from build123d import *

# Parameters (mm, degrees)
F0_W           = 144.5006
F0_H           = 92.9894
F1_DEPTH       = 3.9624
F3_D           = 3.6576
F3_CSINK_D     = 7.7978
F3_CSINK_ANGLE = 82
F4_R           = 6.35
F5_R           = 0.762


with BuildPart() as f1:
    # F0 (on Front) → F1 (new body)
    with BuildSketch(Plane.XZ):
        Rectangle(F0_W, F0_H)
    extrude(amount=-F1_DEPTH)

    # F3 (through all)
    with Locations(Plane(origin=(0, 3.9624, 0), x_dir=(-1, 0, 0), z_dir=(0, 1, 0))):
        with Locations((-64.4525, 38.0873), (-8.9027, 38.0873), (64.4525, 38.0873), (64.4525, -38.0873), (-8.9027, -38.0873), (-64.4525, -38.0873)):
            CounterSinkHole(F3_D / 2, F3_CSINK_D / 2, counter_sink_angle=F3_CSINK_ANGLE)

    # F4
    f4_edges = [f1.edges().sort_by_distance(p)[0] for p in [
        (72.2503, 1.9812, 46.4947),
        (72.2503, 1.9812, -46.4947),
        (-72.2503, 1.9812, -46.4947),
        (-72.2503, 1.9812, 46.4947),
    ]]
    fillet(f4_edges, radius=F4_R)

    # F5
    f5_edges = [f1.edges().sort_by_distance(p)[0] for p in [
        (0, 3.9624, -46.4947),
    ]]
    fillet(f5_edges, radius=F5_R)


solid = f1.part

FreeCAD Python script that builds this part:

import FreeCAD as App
import Part
import Sketcher
Q = App.Units.Quantity


def edges_at(feature, points):
    """Names of the edges that pass closest to the given points."""
    edges = feature.Shape.Edges
    near = lambda p: min(range(len(edges)), key=lambda i: edges[i].distToShape(Part.Vertex(*p))[0])
    return sorted({f"Edge{near(p) + 1}" for p in points})

doc = App.newDocument("Part")
body = doc.addObject("PartDesign::Body", "Body")

# Sketch on XZ plane
sketch1 = doc.addObject("Sketcher::SketchObject", "Sketch")
body.addObject(sketch1)
sketch1.AttachmentSupport = (doc.XZ_Plane, [""])
sketch1.MapMode = "FlatFace"
sketch1.addGeometry([
    Part.LineSegment(App.Vector(-72, 46, 0), App.Vector(-72, -46, 0)),
    Part.LineSegment(App.Vector(-72, -46, 0), App.Vector(72, -46, 0)),
    Part.LineSegment(App.Vector(72, -46, 0), App.Vector(72, 46, 0)),
    Part.LineSegment(App.Vector(72, 46, 0), App.Vector(-72, 46, 0)),
], False)
sketch1.addConstraint([
    Sketcher.Constraint("Coincident", 0, 2, 1, 1),
    Sketcher.Constraint("Coincident", 1, 2, 2, 1),
    Sketcher.Constraint("Coincident", 2, 2, 3, 1),
    Sketcher.Constraint("Coincident", 3, 2, 0, 1),
    Sketcher.Constraint("Vertical", 0),
    Sketcher.Constraint("Horizontal", 1),
    Sketcher.Constraint("Vertical", 2),
    Sketcher.Constraint("Horizontal", 3),
    Sketcher.Constraint("Symmetric", 0, 2, 2, 2, -1, 1),
    Sketcher.Constraint("DistanceX", 1, 1, 1, 2, Q("5.689 in")),
    Sketcher.Constraint("DistanceY", 0, 2, 0, 1, Q("3.661 in")),
])
pad1 = doc.addObject("PartDesign::Pad", "Pad")
body.addObject(pad1)
pad1.Profile = sketch1
pad1.Length = Q("0.156 in")
pad1.Reversed = True

# Sketch on XZ plane
sketch2 = doc.addObject("Sketcher::SketchObject", "Sketch001")
body.addObject(sketch2)
sketch2.AttachmentSupport = (doc.XZ_Plane, [""])
sketch2.MapMode = "FlatFace"
sketch2.AttachmentOffset = App.Placement(App.Vector(0, 0, -0.156 * 25.4), App.Rotation())
sketch2.addGeometry([
    Part.Circle(App.Vector(64.5, 38.1, 0), App.Vector(0, 0, 1), 1.8),  # 0
    Part.Circle(App.Vector(8.9, 38.1, 0), App.Vector(0, 0, 1), 1.8),  # 1
    Part.Circle(App.Vector(-64.5, 38.1, 0), App.Vector(0, 0, 1), 1.8),  # 2
    Part.Circle(App.Vector(-64.5, -38.1, 0), App.Vector(0, 0, 1), 1.8),  # 3
    Part.Circle(App.Vector(8.9, -38.1, 0), App.Vector(0, 0, 1), 1.8),  # 4
    Part.Circle(App.Vector(64.5, -38.1, 0), App.Vector(0, 0, 1), 1.8),  # 5
], False)
sketch2.addConstraint([
    Sketcher.Constraint("Equal", 0, 1),
    Sketcher.Constraint("Equal", 1, 2),
    Sketcher.Constraint("Equal", 2, 3),
    Sketcher.Constraint("Equal", 3, 4),
    Sketcher.Constraint("Equal", 4, 5),
    Sketcher.Constraint("Symmetric", 0, 3, 3, 3, -1, 1),
    Sketcher.Constraint("Symmetric", 2, 3, 5, 3, -1, 1),
    Sketcher.Constraint("Symmetric", 0, 3, 2, 3, -2),
    Sketcher.Constraint("Symmetric", 1, 3, 4, 3, -1),
    Sketcher.Constraint("Horizontal", 0, 3, 1, 3),
    Sketcher.Constraint("Diameter", 0, Q("0.144 in")),
    Sketcher.Constraint("DistanceX", 1, 3, 0, 3, Q("2.187 in")),
    Sketcher.Constraint("DistanceX", 2, 3, 1, 3, Q("2.888 in")),
    Sketcher.Constraint("DistanceY", 3, 3, 2, 3, Q("2.999 in")),
])
doc.recompute()
hole = doc.addObject("PartDesign::Hole", "Hole")
body.addObject(hole)
hole.Profile = sketch2
hole.ThreadType = "None"
hole.Diameter = Q("0.144 in")
hole.DepthType = "ThroughAll"
hole.HoleCutType = "Countersink"
hole.HoleCutDiameter = Q("0.307 in")
hole.HoleCutCountersinkAngle = 82
hole.Reversed = True
doc.recompute()

fillet = doc.addObject("PartDesign::Fillet", "Fillet")
body.addObject(fillet)
fillet.Base = (hole, edges_at(hole, [
    (72.25, 1.981, 46.495),
    (72.25, 1.981, -46.495),
    (-72.25, 1.981, -46.495),
    (-72.25, 1.981, 46.495),
]))
fillet.Radius = Q("0.25 in")
doc.recompute()

fillet2 = doc.addObject("PartDesign::Fillet", "Fillet001")
body.addObject(fillet2)
fillet2.Base = (fillet, edges_at(fillet, [(0, 3.962, -46.495)]))
fillet2.Radius = Q("0.03 in")

doc.recompute()
